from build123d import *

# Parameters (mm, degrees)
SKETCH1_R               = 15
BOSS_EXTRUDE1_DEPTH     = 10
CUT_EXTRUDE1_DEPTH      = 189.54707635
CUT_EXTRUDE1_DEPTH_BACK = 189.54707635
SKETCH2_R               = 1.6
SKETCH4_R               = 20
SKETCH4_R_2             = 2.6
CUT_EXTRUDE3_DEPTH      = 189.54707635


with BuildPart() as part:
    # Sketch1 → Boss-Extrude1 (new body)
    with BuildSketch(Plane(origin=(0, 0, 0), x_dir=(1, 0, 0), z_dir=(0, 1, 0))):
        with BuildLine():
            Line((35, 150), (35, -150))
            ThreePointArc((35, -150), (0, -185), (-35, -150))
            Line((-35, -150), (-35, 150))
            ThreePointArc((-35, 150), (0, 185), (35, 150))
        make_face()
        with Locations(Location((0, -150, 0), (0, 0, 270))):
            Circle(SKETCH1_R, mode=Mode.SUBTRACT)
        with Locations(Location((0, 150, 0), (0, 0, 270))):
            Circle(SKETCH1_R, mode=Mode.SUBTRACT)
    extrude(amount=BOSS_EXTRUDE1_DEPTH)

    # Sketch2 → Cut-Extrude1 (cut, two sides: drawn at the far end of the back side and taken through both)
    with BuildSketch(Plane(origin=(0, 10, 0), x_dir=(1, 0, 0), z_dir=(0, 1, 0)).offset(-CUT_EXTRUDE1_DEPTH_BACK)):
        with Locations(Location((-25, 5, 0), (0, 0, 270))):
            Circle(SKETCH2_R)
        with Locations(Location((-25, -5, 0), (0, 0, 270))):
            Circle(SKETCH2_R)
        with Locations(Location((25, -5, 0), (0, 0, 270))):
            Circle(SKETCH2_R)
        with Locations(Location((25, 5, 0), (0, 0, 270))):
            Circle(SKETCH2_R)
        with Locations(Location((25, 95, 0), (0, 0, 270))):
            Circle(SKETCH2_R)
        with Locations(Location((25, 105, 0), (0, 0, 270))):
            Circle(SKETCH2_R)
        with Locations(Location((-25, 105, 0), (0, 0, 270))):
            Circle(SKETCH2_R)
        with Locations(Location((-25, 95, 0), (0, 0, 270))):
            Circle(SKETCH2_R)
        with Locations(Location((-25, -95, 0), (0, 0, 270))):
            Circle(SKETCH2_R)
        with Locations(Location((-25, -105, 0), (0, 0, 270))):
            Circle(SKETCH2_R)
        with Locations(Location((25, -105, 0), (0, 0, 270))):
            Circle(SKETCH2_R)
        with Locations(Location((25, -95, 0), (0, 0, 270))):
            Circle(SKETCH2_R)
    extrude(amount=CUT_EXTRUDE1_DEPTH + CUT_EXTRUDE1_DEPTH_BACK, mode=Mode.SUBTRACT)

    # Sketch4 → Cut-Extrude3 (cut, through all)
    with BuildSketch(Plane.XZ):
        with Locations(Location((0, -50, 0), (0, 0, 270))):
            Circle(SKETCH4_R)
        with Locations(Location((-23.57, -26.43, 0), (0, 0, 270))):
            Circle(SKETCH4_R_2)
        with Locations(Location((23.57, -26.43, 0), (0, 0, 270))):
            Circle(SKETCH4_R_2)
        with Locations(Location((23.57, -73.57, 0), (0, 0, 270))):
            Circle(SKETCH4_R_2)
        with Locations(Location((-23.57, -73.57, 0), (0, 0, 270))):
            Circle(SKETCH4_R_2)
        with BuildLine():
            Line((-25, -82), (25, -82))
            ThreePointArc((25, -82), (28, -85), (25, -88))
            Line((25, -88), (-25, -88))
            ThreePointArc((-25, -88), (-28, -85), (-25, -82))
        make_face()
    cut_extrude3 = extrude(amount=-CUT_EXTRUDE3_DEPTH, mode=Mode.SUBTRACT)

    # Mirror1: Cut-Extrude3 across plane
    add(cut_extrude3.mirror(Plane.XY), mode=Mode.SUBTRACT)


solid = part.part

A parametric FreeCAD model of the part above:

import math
import FreeCAD as App
import Part
import Sketcher
Q = App.Units.Quantity

doc = App.newDocument("Part")
body = doc.addObject("PartDesign::Body", "Body")

# Sketch on XZ plane
sketch1 = doc.addObject("Sketcher::SketchObject", "Sketch")
body.addObject(sketch1)
sketch1.AttachmentSupport = (doc.XZ_Plane, [""])
sketch1.MapMode = "FlatFace"
sketch1.addGeometry(Part.LineSegment(App.Vector(35, 150, 0), App.Vector(35, -150, 0)), False)
sketch1.addGeometry(Part.ArcOfCircle(Part.Circle(App.Vector(0, -150, 0), App.Vector(0, 0, 1), 35), math.radians(180), math.radians(360)), False)
sketch1.addGeometry(Part.LineSegment(App.Vector(-35, -150, 0), App.Vector(-35, 150, 0)), False)
sketch1.addGeometry(Part.ArcOfCircle(Part.Circle(App.Vector(0, 150, 0), App.Vector(0, 0, 1), 35), math.radians(0), math.radians(180)), False)
sketch1.addGeometry(Part.Circle(App.Vector(0, 150, 0), App.Vector(0, 0, 1), 15), False)
sketch1.addGeometry(Part.Circle(App.Vector(0, -150, 0), App.Vector(0, 0, 1), 15), False)
sketch1.addConstraint(Sketcher.Constraint("Tangent", 0, 2, 1, 2))
sketch1.addConstraint(Sketcher.Constraint("Tangent", 1, 1, 2, 1))
sketch1.addConstraint(Sketcher.Constraint("Tangent", 2, 2, 3, 2))
sketch1.addConstraint(Sketcher.Constraint("Tangent", 3, 1, 0, 1))
sketch1.addConstraint(Sketcher.Constraint("Vertical", 0))
sketch1.addConstraint(Sketcher.Constraint("Vertical", 2))
sketch1.addConstraint(Sketcher.Constraint("Coincident", 4, 3, 3, 3))
sketch1.addConstraint(Sketcher.Constraint("Coincident", 5, 3, 1, 3))
sketch1.addConstraint(Sketcher.Constraint("Equal", 4, 5))
sketch1.addConstraint(Sketcher.Constraint("Symmetric", 1, 3, 3, 3, -1, 1))
sketch1.addConstraint(Sketcher.Constraint("Diameter", 4, Q("30 mm")))
sketch1.addConstraint(Sketcher.Constraint("Radius", 1, Q("35 mm")))
sketch1.addConstraint(Sketcher.Constraint("DistanceY", 0, 2, 0, 1, Q("300 mm")))
pad1 = doc.addObject("PartDesign::Pad", "Pad")
body.addObject(pad1)
pad1.Profile = sketch1
pad1.Length = 10
pad1.Reversed = True

# Sketch on XZ plane
sketch2 = doc.addObject("Sketcher::SketchObject", "Sketch001")
body.addObject(sketch2)
sketch2.AttachmentSupport = (doc.XZ_Plane, [""])
sketch2.MapMode = "FlatFace"
sketch2.AttachmentOffset = App.Placement(App.Vector(0, 0, -10), App.Rotation())
sketch2.addGeometry(Part.Circle(App.Vector(-25, -5, 0), App.Vector(0, 0, 1), 1.6), False)
sketch2.addGeometry(Part.Circle(App.Vector(-25, 5, 0), App.Vector(0, 0, 1), 1.6), False)
sketch2.addGeometry(Part.Circle(App.Vector(25, 5, 0), App.Vector(0, 0, 1), 1.6), False)
sketch2.addGeometry(Part.Circle(App.Vector(25, -5, 0), App.Vector(0, 0, 1), 1.6), False)
sketch2.addGeometry(Part.Circle(App.Vector(25, -95, 0), App.Vector(0, 0, 1), 1.6), False)
sketch2.addGeometry(Part.Circle(App.Vector(25, -105, 0), App.Vector(0, 0, 1), 1.6), False)
sketch2.addGeometry(Part.Circle(App.Vector(-25, -105, 0), App.Vector(0, 0, 1), 1.6), False)
sketch2.addGeometry(Part.Circle(App.Vector(-25, -95, 0), App.Vector(0, 0, 1), 1.6), False)
sketch2.addGeometry(Part.Circle(App.Vector(-25, 95, 0), App.Vector(0, 0, 1), 1.6), False)
sketch2.addGeometry(Part.Circle(App.Vector(-25, 105, 0), App.Vector(0, 0, 1), 1.6), False)
sketch2.addGeometry(Part.Circle(App.Vector(25, 105, 0), App.Vector(0, 0, 1), 1.6), False)
sketch2.addGeometry(Part.Circle(App.Vector(25, 95, 0), App.Vector(0, 0, 1), 1.6), False)
sketch2.addConstraint(Sketcher.Constraint("Equal", 0, 1))
sketch2.addConstraint(Sketcher.Constraint("Equal", 1, 2))
sketch2.addConstraint(Sketcher.Constraint("Equal", 2, 3))
sketch2.addConstraint(Sketcher.Constraint("Equal", 3, 4))
sketch2.addConstraint(Sketcher.Constraint("Equal", 4, 5))
sketch2.addConstraint(Sketcher.Constraint("Equal", 5, 6))
sketch2.addConstraint(Sketcher.Constraint("Equal", 6, 7))
sketch2.addConstraint(Sketcher.Constraint("Equal", 7, 8))
sketch2.addConstraint(Sketcher.Constraint("Equal", 8, 9))
sketch2.addConstraint(Sketcher.Constraint("Equal", 9, 10))
sketch2.addConstraint(Sketcher.Constraint("Equal", 10, 11))
sketch2.addConstraint(Sketcher.Constraint("Symmetric", 0, 3, 2, 3, -1, 1))
sketch2.addConstraint(Sketcher.Constraint("Symmetric", 1, 3, 3, 3, -1, 1))
sketch2.addConstraint(Sketcher.Constraint("Symmetric", 4, 3, 8, 3, -1, 1))
sketch2.addConstraint(Sketcher.Constraint("Symmetric", 5, 3, 9, 3, -1, 1))
sketch2.addConstraint(Sketcher.Constraint("Symmetric", 6, 3, 10, 3, -1, 1))
sketch2.addConstraint(Sketcher.Constraint("Symmetric", 7, 3, 11, 3, -1, 1))
sketch2.addConstraint(Sketcher.Constraint("Symmetric", 1, 3, 2, 3, -2))
sketch2.addConstraint(Sketcher.Constraint("Symmetric", 5, 3, 6, 3, -2))
sketch2.addConstraint(Sketcher.Constraint("Symmetric", 4, 3, 7, 3, -2))
sketch2.addConstraint(Sketcher.Constraint("Vertical", 3, 3, 4, 3))
sketch2.addConstraint(Sketcher.Constraint("Vertical", 4, 3, 5, 3))
sketch2.addConstraint(Sketcher.Constraint("Diameter", 0, Q("3.2 mm")))
sketch2.addConstraint(Sketcher.Constraint("DistanceX", 0, 3, -1, 1, Q("25 mm")))
sketch2.addConstraint(Sketcher.Constraint("DistanceY", 0, 3, -1, 1, Q("5 mm")))
sketch2.addConstraint(Sketcher.Constraint("DistanceY", 4, 3, -1, 1, Q("95 mm")))
sketch2.addConstraint(Sketcher.Constraint("DistanceY", 5, 3, -1, 1, Q("105 mm")))
pocket1 = doc.addObject("PartDesign::Pocket", "Pocket")
body.addObject(pocket1)
pocket1.Profile = sketch2
pocket1.Type = "ThroughAll"
pocket1.Midplane = True

# Sketch on XZ plane
sketch3 = doc.addObject("Sketcher::SketchObject", "Sketch002")
body.addObject(sketch3)
sketch3.AttachmentSupport = (doc.XZ_Plane, [""])
sketch3.MapMode = "FlatFace"
sketch3.addGeometry(Part.Circle(App.Vector(0, -50, 0), App.Vector(0, 0, 1), 20), False)
sketch3.addGeometry(Part.Circle(App.Vector(-23.6, -26.4, 0), App.Vector(0, 0, 1), 2.6), False)
sketch3.addGeometry(Part.Circle(App.Vector(23.6, -26.4, 0), App.Vector(0, 0, 1), 2.6), False)
sketch3.addGeometry(Part.Circle(App.Vector(23.6, -73.6, 0), App.Vector(0, 0, 1), 2.6), False)
sketch3.addGeometry(Part.Circle(App.Vector(-23.6, -73.6, 0), App.Vector(0, 0, 1), 2.6), False)
sketch3.addGeometry(Part.LineSegment(App.Vector(25, -82, 0), App.Vector(-25, -82, 0)), False)
sketch3.addGeometry(Part.ArcOfCircle(Part.Circle(App.Vector(-25, -85, 0), App.Vector(0, 0, 1), 3), math.radians(90), math.radians(270)), False)
sketch3.addGeometry(Part.LineSegment(App.Vector(-25, -88, 0), App.Vector(25, -88, 0)), False)
sketch3.addGeometry(Part.ArcOfCircle(Part.Circle(App.Vector(25, -85, 0), App.Vector(0, 0, 1), 3), math.radians(-90), math.radians(90)), False)
sketch3.addConstraint(Sketcher.Constraint("Tangent", 5, 2, 6, 1))
sketch3.addConstraint(Sketcher.Constraint("Tangent", 6, 2, 7, 1))
sketch3.addConstraint(Sketcher.Constraint("Tangent", 7, 2, 8, 1))
sketch3.addConstraint(Sketcher.Constraint("Tangent", 8, 2, 5, 1))
sketch3.addConstraint(Sketcher.Constraint("Horizontal", 5))
sketch3.addConstraint(Sketcher.Constraint("Horizontal", 7))
sketch3.addConstraint(Sketcher.Constraint("Equal", 1, 2))
sketch3.addConstraint(Sketcher.Constraint("Equal", 2, 3))
sketch3.addConstraint(Sketcher.Constraint("Equal", 3, 4))
sketch3.addConstraint(Sketcher.Constraint("Symmetric", 1, 3, 2, 3, -2))
sketch3.addConstraint(Sketcher.Constraint("Symmetric", 3, 3, 4, 3, -2))
sketch3.addConstraint(Sketcher.Constraint("PointOnObject", 0, 3, -2))
sketch3.addConstraint(Sketcher.Constraint("Vertical", 2, 3, 3, 3))
sketch3.addConstraint(Sketcher.Constraint("Diameter", 0, Q("40 mm")))
sketch3.addConstraint(Sketcher.Constraint("Radius", 6, Q("3 mm")))
sketch3.addConstraint(Sketcher.Constraint("Diameter", 1, Q("5.2 mm")))
sketch3.addConstraint(Sketcher.Constraint("DistanceX", 5, 2, 5, 1, Q("50 mm")))
sketch3.addConstraint(Sketcher.Constraint("DistanceY", 0, 3, -1, 1, Q("50 mm")))
sketch3.addConstraint(Sketcher.Constraint("DistanceX", 6, 3, -1, 1, Q("25 mm")))
sketch3.addConstraint(Sketcher.Constraint("DistanceY", 6, 3, -1, 1, Q("85 mm")))
sketch3.addConstraint(Sketcher.Constraint("DistanceX", 1, 3, -1, 1, Q("23.57 mm")))
sketch3.addConstraint(Sketcher.Constraint("DistanceY", 1, 3, -1, 1, Q("26.43 mm")))
sketch3.addConstraint(Sketcher.Constraint("DistanceY", 3, 3, -1, 1, Q("73.57 mm")))
pocket2 = doc.addObject("PartDesign::Pocket", "Pocket001")
body.addObject(pocket2)
pocket2.Profile = sketch3
pocket2.Type = "ThroughAll"
doc.recompute()

mirrored = doc.addObject("PartDesign::Mirrored", "Mirrored")
body.addObject(mirrored)
mirrored.Originals = [pocket2]
mirrored.MirrorPlane = (doc.XY_Plane, [""])
body.Tip = mirrored

doc.recompute()
